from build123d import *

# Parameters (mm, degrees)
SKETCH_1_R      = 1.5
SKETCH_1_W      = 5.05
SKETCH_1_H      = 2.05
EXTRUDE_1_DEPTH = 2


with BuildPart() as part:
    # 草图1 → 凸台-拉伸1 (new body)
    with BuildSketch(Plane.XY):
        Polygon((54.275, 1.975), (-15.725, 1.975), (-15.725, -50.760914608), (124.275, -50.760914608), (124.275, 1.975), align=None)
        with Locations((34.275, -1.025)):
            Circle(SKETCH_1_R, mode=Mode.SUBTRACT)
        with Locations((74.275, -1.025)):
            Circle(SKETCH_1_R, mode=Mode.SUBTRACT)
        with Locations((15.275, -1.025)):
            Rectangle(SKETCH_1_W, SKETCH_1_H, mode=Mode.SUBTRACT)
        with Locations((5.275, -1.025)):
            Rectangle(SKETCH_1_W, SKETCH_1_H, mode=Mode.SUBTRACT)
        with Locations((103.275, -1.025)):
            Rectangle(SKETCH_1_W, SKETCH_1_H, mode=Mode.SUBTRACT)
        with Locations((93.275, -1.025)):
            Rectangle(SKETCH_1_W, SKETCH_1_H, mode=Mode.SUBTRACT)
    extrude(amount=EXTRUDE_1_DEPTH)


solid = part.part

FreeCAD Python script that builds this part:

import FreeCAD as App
import Part
import Sketcher

V = App.Vector
Q = App.Units.Quantity

doc = App.newDocument("Part")
body = doc.addObject("PartDesign::Body", "Body")

# Sketch on XY plane
sketch1 = doc.addObject("Sketcher::SketchObject", "Sketch")
body.addObject(sketch1)
sketch1.AttachmentSupport = (doc.XY_Plane, [""])
sketch1.MapMode = "FlatFace"
sketch1.addGeometry([
    Part.LineSegment(V(-15.725, 1.975, 0), V(-15.725, -50.760915, 0)),  # 0
    Part.LineSegment(V(-15.725, -50.760915, 0), V(124.275, -50.760915, 0)),  # 1
    Part.LineSegment(V(124.275, -50.760915, 0), V(124.275, 1.975, 0)),  # 2
    Part.LineSegment(V(124.275, 1.975, 0), V(-15.725, 1.975, 0)),  # 3
    Part.LineSegment(V(7.8, -2.05, 0), V(2.75, -2.05, 0)),  # 4
    Part.LineSegment(V(2.75, -2.05, 0), V(2.75, 0, 0)),  # 5
    Part.LineSegment(V(2.75, 0, 0), V(7.8, 0, 0)),  # 6
    Part.LineSegment(V(7.8, 0, 0), V(7.8, -2.05, 0)),  # 7
    Part.LineSegment(V(17.8, -2.05, 0), V(12.75, -2.05, 0)),  # 8
    Part.LineSegment(V(12.75, -2.05, 0), V(12.75, 0, 0)),  # 9
    Part.LineSegment(V(12.75, 0, 0), V(17.8, 0, 0)),  # 10
    Part.LineSegment(V(17.8, 0, 0), V(17.8, -2.05, 0)),  # 11
    Part.LineSegment(V(95.8, -2.05, 0), V(90.75, -2.05, 0)),  # 12
    Part.LineSegment(V(90.75, -2.05, 0), V(90.75, 0, 0)),  # 13
    Part.LineSegment(V(90.75, 0, 0), V(95.8, 0, 0)),  # 14
    Part.LineSegment(V(95.8, 0, 0), V(95.8, -2.05, 0)),  # 15
    Part.LineSegment(V(105.8, -2.05, 0), V(100.75, -2.05, 0)),  # 16
    Part.LineSegment(V(100.75, -2.05, 0), V(100.75, 0, 0)),  # 17
    Part.LineSegment(V(100.75, 0, 0), V(105.8, 0, 0)),  # 18
    Part.LineSegment(V(105.8, 0, 0), V(105.8, -2.05, 0)),  # 19
    Part.Circle(V(34.275, -1.025, 0), V(0, 0, 1), 1.5),  # 20
    Part.Circle(V(74.275, -1.025, 0), V(0, 0, 1), 1.5),  # 21
], False)
sketch1.addConstraint([
    Sketcher.Constraint("Coincident", 0, 2, 1, 1),
    Sketcher.Constraint("Coincident", 1, 2, 2, 1),
    Sketcher.Constraint("Coincident", 2, 2, 3, 1),
    Sketcher.Constraint("Coincident", 3, 2, 0, 1),
    Sketcher.Constraint("Coincident", 4, 2, 5, 1),
    Sketcher.Constraint("Coincident", 5, 2, 6, 1),
    Sketcher.Constraint("Coincident", 6, 2, 7, 1),
    Sketcher.Constraint("Coincident", 7, 2, 4, 1),
    Sketcher.Constraint("Coincident", 8, 2, 9, 1),
    Sketcher.Constraint("Coincident", 9, 2, 10, 1),
    Sketcher.Constraint("Coincident", 10, 2, 11, 1),
    Sketcher.Constraint("Coincident", 11, 2, 8, 1),
    Sketcher.Constraint("Coincident", 12, 2, 13, 1),
    Sketcher.Constraint("Coincident", 13, 2, 14, 1),
    Sketcher.Constraint("Coincident", 14, 2, 15, 1),
    Sketcher.Constraint("Coincident", 15, 2, 12, 1),
    Sketcher.Constraint("Coincident", 16, 2, 17, 1),
    Sketcher.Constraint("Coincident", 17, 2, 18, 1),
    Sketcher.Constraint("Coincident", 18, 2, 19, 1),
    Sketcher.Constraint("Coincident", 19, 2, 16, 1),
    Sketcher.Constraint("Vertical", 0),
    Sketcher.Constraint("Horizontal", 1),
    Sketcher.Constraint("Vertical", 2),
    Sketcher.Constraint("Horizontal", 3),
    Sketcher.Constraint("Horizontal", 4),
    Sketcher.Constraint("Vertical", 5),
    Sketcher.Constraint("Horizontal", 6),
    Sketcher.Constraint("Vertical", 7),
    Sketcher.Constraint("Horizontal", 8),
    Sketcher.Constraint("Vertical", 9),
    Sketcher.Constraint("Horizontal", 10),
    Sketcher.Constraint("Vertical", 11),
    Sketcher.Constraint("Horizontal", 12),
    Sketcher.Constraint("Vertical", 13),
    Sketcher.Constraint("Horizontal", 14),
    Sketcher.Constraint("Vertical", 15),
    Sketcher.Constraint("Horizontal", 16),
    Sketcher.Constraint("Vertical", 17),
    Sketcher.Constraint("Horizontal", 18),
    Sketcher.Constraint("Vertical", 19),
    Sketcher.Constraint("Equal", 20, 21),
    Sketcher.Constraint("PointOnObject", 5, 2, -1),
    Sketcher.Constraint("PointOnObject", 9, 2, -1),
    Sketcher.Constraint("PointOnObject", 13, 2, -1),
    Sketcher.Constraint("PointOnObject", 17, 2, -1),
    Sketcher.Constraint("Horizontal", 20, 3, 21, 3),
    Sketcher.Constraint("Horizontal", 7, 2, 8, 2),
    Sketcher.Constraint("Horizontal", 11, 2, 12, 2),
    Sketcher.Constraint("Horizontal", 15, 2, 16, 2),
    Sketcher.Constraint("Equal", 6, 8),
    Sketcher.Constraint("Equal", 10, 12),
    Sketcher.Constraint("Equal", 14, 16),
    Sketcher.Constraint("Diameter", 20, Q("3 mm")),
    Sketcher.Constraint("DistanceX", 1, 1, 1, 2, Q("140 mm")),
    Sketcher.Constraint("DistanceX", 20, 3, 21, 3, Q("40 mm")),
    Sketcher.Constraint("DistanceX", 0, 2, 20, 3, Q("50 mm")),
    Sketcher.Constraint("DistanceY", 21, 3, 2, 2, Q("3 mm")),
    Sketcher.Constraint("DistanceX", 4, 2, 8, 2, Q("10 mm")),
    Sketcher.Constraint("DistanceX", 12, 2, 16, 2, Q("10 mm")),
    Sketcher.Constraint("DistanceX", 4, 2, 4, 1, Q("5.05 mm")),
    Sketcher.Constraint("DistanceY", 5, 1, 5, 2, Q("2.05 mm")),
    Sketcher.Constraint("DistanceX", -1, 1, 6, 2, Q("7.8 mm")),
    Sketcher.Constraint("DistanceX", -1, 1, 14, 2, Q("95.8 mm")),
    Sketcher.Constraint("DistanceX", -1, 1, 20, 3, Q("34.275 mm")),
    Sketcher.Constraint("DistanceY", 20, 3, -1, 1, Q("1.025 mm")),
    Sketcher.Constraint("DistanceY", 0, 2, 0, 1, Q("52.735915 mm")),
])
pad1 = doc.addObject("PartDesign::Pad", "Pad")
body.addObject(pad1)
pad1.Profile = sketch1
pad1.Length = 2

doc.recompute()
